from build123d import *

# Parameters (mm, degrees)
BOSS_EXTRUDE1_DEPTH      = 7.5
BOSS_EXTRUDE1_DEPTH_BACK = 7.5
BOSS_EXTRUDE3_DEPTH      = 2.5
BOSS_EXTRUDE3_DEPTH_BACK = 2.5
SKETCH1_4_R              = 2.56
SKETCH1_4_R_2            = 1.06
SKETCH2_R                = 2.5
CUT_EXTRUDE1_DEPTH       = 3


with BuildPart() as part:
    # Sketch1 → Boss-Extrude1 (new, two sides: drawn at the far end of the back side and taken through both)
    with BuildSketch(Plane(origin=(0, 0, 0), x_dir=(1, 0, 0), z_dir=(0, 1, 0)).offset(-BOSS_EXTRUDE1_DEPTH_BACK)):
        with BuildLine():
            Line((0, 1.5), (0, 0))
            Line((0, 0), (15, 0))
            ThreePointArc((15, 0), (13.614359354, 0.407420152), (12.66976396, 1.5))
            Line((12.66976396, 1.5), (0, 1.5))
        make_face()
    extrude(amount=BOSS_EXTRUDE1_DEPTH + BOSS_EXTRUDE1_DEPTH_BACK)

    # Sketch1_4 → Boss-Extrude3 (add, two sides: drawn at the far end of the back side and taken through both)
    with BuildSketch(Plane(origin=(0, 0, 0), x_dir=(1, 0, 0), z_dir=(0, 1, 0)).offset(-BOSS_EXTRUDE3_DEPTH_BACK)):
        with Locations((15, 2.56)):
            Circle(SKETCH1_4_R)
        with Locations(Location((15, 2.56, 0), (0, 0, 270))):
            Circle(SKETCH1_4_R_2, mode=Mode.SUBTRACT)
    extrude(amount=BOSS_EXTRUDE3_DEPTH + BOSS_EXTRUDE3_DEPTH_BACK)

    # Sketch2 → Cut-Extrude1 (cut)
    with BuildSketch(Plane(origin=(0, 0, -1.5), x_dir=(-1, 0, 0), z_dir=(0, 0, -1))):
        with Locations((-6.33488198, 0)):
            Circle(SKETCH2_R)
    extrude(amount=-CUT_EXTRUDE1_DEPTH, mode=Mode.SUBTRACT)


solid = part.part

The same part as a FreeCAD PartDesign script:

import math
import FreeCAD as App
import Part
import Sketcher
from FreeCAD import Vector

doc = App.newDocument("Part")
body = doc.addObject("PartDesign::Body", "Body")

# Sketch on XZ plane
sketch1 = body.newObject("Sketcher::SketchObject", "Sketch")
sketch1.AttachmentSupport = (doc.getObject("XZ_Plane"), [""])
sketch1.MapMode = "FlatFace"
sketch1.addGeometry(Part.LineSegment(Vector(0, -1.5, 0), Vector(0, 0, 0)), False)
sketch1.addGeometry(Part.LineSegment(Vector(0, 0, 0), Vector(15, 0, 0)), False)
sketch1.addGeometry(Part.ArcOfCircle(Part.Circle(Vector(15, -2.56, 0), Vector(0, 0, 1), 2.56), math.radians(90), math.radians(155.539709)), False)
sketch1.addGeometry(Part.LineSegment(Vector(12.669764, -1.5, 0), Vector(0, -1.5, 0)), False)
sketch1.addConstraint(Sketcher.Constraint("Coincident", 0, 2, 1, 1))
sketch1.addConstraint(Sketcher.Constraint("Tangent", 1, 2, 2, 1))
sketch1.addConstraint(Sketcher.Constraint("Coincident", 2, 2, 3, 1))
sketch1.addConstraint(Sketcher.Constraint("Coincident", 3, 2, 0, 1))
sketch1.addConstraint(Sketcher.Constraint("Vertical", 0))
sketch1.addConstraint(Sketcher.Constraint("Horizontal", 1))
sketch1.addConstraint(Sketcher.Constraint("Horizontal", 3))
sketch1.addConstraint(Sketcher.Constraint("Coincident", 0, 2, -1, 1))
sketch1.addConstraint(Sketcher.Constraint("DistanceX", 1, 1, 1, 2, 15.0))
sketch1.addConstraint(Sketcher.Constraint("Radius", 2, 2.56))
sketch1.addConstraint(Sketcher.Constraint("DistanceY", 0, 1, 0, 2, 1.5))
pad1 = body.newObject("PartDesign::Pad", "Pad")
pad1.Profile = sketch1
pad1.Type = "TwoLengths"
pad1.Length = 7.5
pad1.Length2 = 7.5
pad1.Reversed = True

# Sketch on XZ plane
sketch2 = body.newObject("Sketcher::SketchObject", "Sketch001")
sketch2.AttachmentSupport = (doc.getObject("XZ_Plane"), [""])
sketch2.MapMode = "FlatFace"
sketch2.addGeometry(Part.Circle(Vector(15, -2.56, 0), Vector(0, 0, 1), 2.56), False)
sketch2.addGeometry(Part.Circle(Vector(15, -2.56, 0), Vector(0, 0, 1), 1.06), False)
sketch2.addConstraint(Sketcher.Constraint("Coincident", 1, 3, 0, 3))
sketch2.addConstraint(Sketcher.Constraint("Diameter", 0, 5.12))
sketch2.addConstraint(Sketcher.Constraint("Diameter", 1, 2.12))
sketch2.addConstraint(Sketcher.Constraint("DistanceX", -1, 1, 0, 3, 15.0))
sketch2.addConstraint(Sketcher.Constraint("DistanceY", 0, 3, -1, 1, 2.56))
pad2 = body.newObject("PartDesign::Pad", "Pad001")
pad2.Profile = sketch2
pad2.Type = "TwoLengths"
pad2.Length = 2.5
pad2.Length2 = 2.5
pad2.Reversed = True

# Sketch on XY plane
sketch3 = body.newObject("Sketcher::SketchObject", "Sketch002")
sketch3.AttachmentSupport = (doc.getObject("XY_Plane"), [""])
sketch3.MapMode = "FlatFace"
sketch3.AttachmentOffset = App.Placement(Vector(0, 0, -1.5), App.Rotation())
sketch3.addGeometry(Part.Circle(Vector(6.334882, 0, 0), Vector(0, 0, 1), 2.5), False)
sketch3.addConstraint(Sketcher.Constraint("PointOnObject", 0, 3, -1))
sketch3.addConstraint(Sketcher.Constraint("Diameter", 0, 5.0))
sketch3.addConstraint(Sketcher.Constraint("DistanceX", -1, 1, 0, 3, 6.334882))
pocket1 = body.newObject("PartDesign::Pocket", "Pocket")
pocket1.Profile = sketch3
pocket1.Length = 3
pocket1.Reversed = True

doc.recompute()
